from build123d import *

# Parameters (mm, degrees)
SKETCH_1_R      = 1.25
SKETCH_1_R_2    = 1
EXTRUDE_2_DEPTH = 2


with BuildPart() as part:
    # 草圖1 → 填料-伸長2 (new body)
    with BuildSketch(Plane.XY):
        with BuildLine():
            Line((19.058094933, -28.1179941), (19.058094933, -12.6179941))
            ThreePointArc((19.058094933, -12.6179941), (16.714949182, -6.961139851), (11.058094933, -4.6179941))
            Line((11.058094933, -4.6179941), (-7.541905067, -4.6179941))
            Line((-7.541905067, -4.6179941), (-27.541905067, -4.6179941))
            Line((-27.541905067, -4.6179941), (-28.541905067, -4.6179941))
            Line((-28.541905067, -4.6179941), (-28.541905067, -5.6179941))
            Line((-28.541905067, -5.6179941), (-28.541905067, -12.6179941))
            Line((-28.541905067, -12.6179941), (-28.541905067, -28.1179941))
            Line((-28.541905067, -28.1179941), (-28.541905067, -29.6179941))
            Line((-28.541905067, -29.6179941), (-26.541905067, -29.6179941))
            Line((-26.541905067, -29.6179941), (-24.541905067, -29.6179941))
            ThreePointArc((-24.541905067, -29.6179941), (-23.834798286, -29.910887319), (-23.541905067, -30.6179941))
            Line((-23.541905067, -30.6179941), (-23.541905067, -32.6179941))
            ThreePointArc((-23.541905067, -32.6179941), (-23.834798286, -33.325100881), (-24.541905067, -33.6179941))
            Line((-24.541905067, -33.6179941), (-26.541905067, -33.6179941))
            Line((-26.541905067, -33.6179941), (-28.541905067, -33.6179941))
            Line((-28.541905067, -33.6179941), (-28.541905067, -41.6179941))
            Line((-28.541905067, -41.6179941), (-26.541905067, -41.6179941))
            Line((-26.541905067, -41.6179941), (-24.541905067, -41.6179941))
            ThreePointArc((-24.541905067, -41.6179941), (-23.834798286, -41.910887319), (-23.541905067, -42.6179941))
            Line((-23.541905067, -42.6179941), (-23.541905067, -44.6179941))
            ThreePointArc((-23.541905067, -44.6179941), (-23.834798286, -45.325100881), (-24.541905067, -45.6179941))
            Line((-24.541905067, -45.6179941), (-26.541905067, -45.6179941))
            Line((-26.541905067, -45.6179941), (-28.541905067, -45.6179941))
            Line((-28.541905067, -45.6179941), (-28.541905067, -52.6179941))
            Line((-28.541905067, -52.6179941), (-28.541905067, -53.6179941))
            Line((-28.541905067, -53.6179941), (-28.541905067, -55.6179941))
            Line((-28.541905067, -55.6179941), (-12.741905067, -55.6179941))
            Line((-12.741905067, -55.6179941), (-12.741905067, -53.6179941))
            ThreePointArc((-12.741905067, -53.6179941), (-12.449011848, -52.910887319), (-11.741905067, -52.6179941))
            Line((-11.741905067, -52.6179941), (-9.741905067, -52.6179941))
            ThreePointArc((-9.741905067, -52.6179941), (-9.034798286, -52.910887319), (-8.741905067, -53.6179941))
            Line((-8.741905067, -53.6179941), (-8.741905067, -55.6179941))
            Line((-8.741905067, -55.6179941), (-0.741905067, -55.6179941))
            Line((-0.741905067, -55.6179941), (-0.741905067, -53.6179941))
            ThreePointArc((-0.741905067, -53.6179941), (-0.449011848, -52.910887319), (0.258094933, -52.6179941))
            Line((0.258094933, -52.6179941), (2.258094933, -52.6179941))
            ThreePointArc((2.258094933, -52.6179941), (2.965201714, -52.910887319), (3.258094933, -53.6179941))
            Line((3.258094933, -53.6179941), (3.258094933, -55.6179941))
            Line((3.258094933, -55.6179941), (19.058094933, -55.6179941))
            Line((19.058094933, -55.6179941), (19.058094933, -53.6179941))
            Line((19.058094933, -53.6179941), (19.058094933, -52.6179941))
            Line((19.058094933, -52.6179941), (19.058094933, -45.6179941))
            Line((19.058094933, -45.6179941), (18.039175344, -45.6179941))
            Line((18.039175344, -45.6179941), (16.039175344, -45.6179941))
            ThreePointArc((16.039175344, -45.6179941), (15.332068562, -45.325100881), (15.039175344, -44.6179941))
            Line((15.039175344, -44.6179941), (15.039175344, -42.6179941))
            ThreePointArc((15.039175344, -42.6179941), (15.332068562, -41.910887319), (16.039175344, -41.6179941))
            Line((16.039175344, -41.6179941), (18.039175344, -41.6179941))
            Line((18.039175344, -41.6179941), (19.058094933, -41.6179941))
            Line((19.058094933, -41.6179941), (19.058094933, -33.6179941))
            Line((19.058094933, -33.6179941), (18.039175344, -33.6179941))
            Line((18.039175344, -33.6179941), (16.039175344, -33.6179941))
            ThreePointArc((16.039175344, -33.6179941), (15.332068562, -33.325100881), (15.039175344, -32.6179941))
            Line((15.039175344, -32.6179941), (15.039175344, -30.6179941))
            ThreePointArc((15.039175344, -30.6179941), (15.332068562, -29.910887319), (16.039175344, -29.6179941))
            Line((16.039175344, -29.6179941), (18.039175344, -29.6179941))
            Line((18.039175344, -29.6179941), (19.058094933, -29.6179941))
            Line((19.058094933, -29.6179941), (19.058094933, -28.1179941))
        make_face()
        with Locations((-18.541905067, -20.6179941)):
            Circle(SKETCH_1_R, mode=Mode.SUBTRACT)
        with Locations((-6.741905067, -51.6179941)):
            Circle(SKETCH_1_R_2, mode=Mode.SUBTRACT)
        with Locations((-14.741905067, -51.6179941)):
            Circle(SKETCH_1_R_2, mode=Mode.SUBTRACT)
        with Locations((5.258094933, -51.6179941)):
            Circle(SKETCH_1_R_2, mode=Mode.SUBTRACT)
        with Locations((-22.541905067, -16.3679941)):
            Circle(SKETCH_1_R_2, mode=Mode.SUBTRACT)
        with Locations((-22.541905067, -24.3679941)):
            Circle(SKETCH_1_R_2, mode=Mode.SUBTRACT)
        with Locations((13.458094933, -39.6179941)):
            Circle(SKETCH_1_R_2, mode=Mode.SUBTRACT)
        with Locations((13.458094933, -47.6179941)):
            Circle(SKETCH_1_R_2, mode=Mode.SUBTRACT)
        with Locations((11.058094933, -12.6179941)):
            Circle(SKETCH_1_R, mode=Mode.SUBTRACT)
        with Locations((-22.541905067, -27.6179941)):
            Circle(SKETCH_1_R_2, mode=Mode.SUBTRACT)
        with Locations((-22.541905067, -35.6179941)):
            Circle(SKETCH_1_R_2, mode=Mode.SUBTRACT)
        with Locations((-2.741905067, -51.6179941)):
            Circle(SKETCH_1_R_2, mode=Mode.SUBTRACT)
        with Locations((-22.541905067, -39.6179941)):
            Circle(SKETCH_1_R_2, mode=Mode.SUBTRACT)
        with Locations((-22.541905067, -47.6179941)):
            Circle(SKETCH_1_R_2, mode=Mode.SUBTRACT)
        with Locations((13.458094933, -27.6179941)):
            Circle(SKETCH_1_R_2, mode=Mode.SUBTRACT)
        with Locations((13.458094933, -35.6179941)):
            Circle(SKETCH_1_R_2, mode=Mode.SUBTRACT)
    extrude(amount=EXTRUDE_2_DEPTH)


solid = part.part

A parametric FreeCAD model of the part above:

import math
import FreeCAD as App
import Part
import Sketcher

V = App.Vector

doc = App.newDocument("Part")
body = doc.addObject("PartDesign::Body", "Body")

sketch1 = doc.addObject("Sketcher::SketchObject", "Sketch")
body.addObject(sketch1)
sketch1.AttachmentSupport = (doc.XY_Plane, [""])
sketch1.MapMode = "FlatFace"
sketch1.addGeometry(Part.ArcOfCircle(Part.Circle(V(11.1, -12.6, 0), V(0, 0, 1), 8), math.radians(0), math.radians(90)), False)
sketch1.addGeometry(Part.LineSegment(V(11.1, -4.6, 0), V(-28.5, -4.6, 0)), False)
sketch1.addGeometry(Part.LineSegment(V(-28.5, -4.6, 0), V(-28.5, -29.6, 0)), False)
sketch1.addGeometry(Part.LineSegment(V(-28.5, -29.6, 0), V(-24.5, -29.6, 0)), False)
sketch1.addGeometry(Part.ArcOfCircle(Part.Circle(V(-24.5, -30.6, 0), V(0, 0, 1), 1), math.radians(0), math.radians(90)), False)
sketch1.addGeometry(Part.LineSegment(V(-23.5, -30.6, 0), V(-23.5, -32.6, 0)), False)
sketch1.addGeometry(Part.ArcOfCircle(Part.Circle(V(-24.5, -32.6, 0), V(0, 0, 1), 1), math.radians(-90), math.radians(0)), False)
sketch1.addGeometry(Part.LineSegment(V(-24.5, -33.6, 0), V(-28.5, -33.6, 0)), False)
sketch1.addGeometry(Part.LineSegment(V(-28.5, -33.6, 0), V(-28.5, -41.6, 0)), False)
sketch1.addGeometry(Part.LineSegment(V(-28.5, -41.6, 0), V(-24.5, -41.6, 0)), False)
sketch1.addGeometry(Part.ArcOfCircle(Part.Circle(V(-24.5, -42.6, 0), V(0, 0, 1), 1), math.radians(0), math.radians(90)), False)
sketch1.addGeometry(Part.LineSegment(V(-23.5, -42.6, 0), V(-23.5, -44.6, 0)), False)
sketch1.addGeometry(Part.ArcOfCircle(Part.Circle(V(-24.5, -44.6, 0), V(0, 0, 1), 1), math.radians(-90), math.radians(0)), False)
sketch1.addGeometry(Part.LineSegment(V(-24.5, -45.6, 0), V(-28.5, -45.6, 0)), False)
sketch1.addGeometry(Part.LineSegment(V(-28.5, -45.6, 0), V(-28.5, -55.6, 0)), False)
sketch1.addGeometry(Part.LineSegment(V(-28.5, -55.6, 0), V(-12.7, -55.6, 0)), False)
sketch1.addGeometry(Part.LineSegment(V(-12.7, -55.6, 0), V(-12.7, -53.6, 0)), False)
sketch1.addGeometry(Part.ArcOfCircle(Part.Circle(V(-11.7, -53.6, 0), V(0, 0, 1), 1), math.radians(90), math.radians(180)), False)
sketch1.addGeometry(Part.LineSegment(V(-11.7, -52.6, 0), V(-9.7, -52.6, 0)), False)
sketch1.addGeometry(Part.ArcOfCircle(Part.Circle(V(-9.7, -53.6, 0), V(0, 0, 1), 1), math.radians(0), math.radians(90)), False)
sketch1.addGeometry(Part.LineSegment(V(-8.7, -53.6, 0), V(-8.7, -55.6, 0)), False)
sketch1.addGeometry(Part.LineSegment(V(-8.7, -55.6, 0), V(-0.7, -55.6, 0)), False)
sketch1.addGeometry(Part.LineSegment(V(-0.7, -55.6, 0), V(-0.7, -53.6, 0)), False)
sketch1.addGeometry(Part.ArcOfCircle(Part.Circle(V(0.3, -53.6, 0), V(0, 0, 1), 1), math.radians(90), math.radians(180)), False)
sketch1.addGeometry(Part.LineSegment(V(0.3, -52.6, 0), V(2.3, -52.6, 0)), False)
sketch1.addGeometry(Part.ArcOfCircle(Part.Circle(V(2.3, -53.6, 0), V(0, 0, 1), 1), math.radians(0), math.radians(90)), False)
sketch1.addGeometry(Part.LineSegment(V(3.3, -53.6, 0), V(3.3, -55.6, 0)), False)
sketch1.addGeometry(Part.LineSegment(V(3.3, -55.6, 0), V(19.1, -55.6, 0)), False)
sketch1.addGeometry(Part.LineSegment(V(19.1, -55.6, 0), V(19.1, -45.6, 0)), False)
sketch1.addGeometry(Part.LineSegment(V(19.1, -45.6, 0), V(16, -45.6, 0)), False)
sketch1.addGeometry(Part.ArcOfCircle(Part.Circle(V(16, -44.6, 0), V(0, 0, 1), 1), math.radians(180), math.radians(270)), False)
sketch1.addGeometry(Part.LineSegment(V(15, -44.6, 0), V(15, -42.6, 0)), False)
sketch1.addGeometry(Part.ArcOfCircle(Part.Circle(V(16, -42.6, 0), V(0, 0, 1), 1), math.radians(90), math.radians(180)), False)
sketch1.addGeometry(Part.LineSegment(V(16, -41.6, 0), V(19.1, -41.6, 0)), False)
sketch1.addGeometry(Part.LineSegment(V(19.1, -41.6, 0), V(19.1, -33.6, 0)), False)
sketch1.addGeometry(Part.LineSegment(V(19.1, -33.6, 0), V(16, -33.6, 0)), False)
sketch1.addGeometry(Part.ArcOfCircle(Part.Circle(V(16, -32.6, 0), V(0, 0, 1), 1), math.radians(180), math.radians(270)), False)
sketch1.addGeometry(Part.LineSegment(V(15, -32.6, 0), V(15, -30.6, 0)), False)
sketch1.addGeometry(Part.ArcOfCircle(Part.Circle(V(16, -30.6, 0), V(0, 0, 1), 1), math.radians(90), math.radians(180)), False)
sketch1.addGeometry(Part.LineSegment(V(16, -29.6, 0), V(19.1, -29.6, 0)), False)
sketch1.addGeometry(Part.LineSegment(V(19.1, -29.6, 0), V(19.1, -12.6, 0)), False)
sketch1.addGeometry(Part.Circle(V(-22.5, -47.6, 0), V(0, 0, 1), 1), False)
sketch1.addGeometry(Part.Circle(V(-14.7, -51.6, 0), V(0, 0, 1), 1), False)
sketch1.addGeometry(Part.Circle(V(-6.7, -51.6, 0), V(0, 0, 1), 1), False)
sketch1.addGeometry(Part.Circle(V(-22.5, -39.6, 0), V(0, 0, 1), 1), False)
sketch1.addGeometry(Part.Circle(V(-22.5, -35.6, 0), V(0, 0, 1), 1), False)
sketch1.addGeometry(Part.Circle(V(-2.7, -51.6, 0), V(0, 0, 1), 1), False)
sketch1.addGeometry(Part.Circle(V(5.3, -51.6, 0), V(0, 0, 1), 1), False)
sketch1.addGeometry(Part.Circle(V(13.5, -47.6, 0), V(0, 0, 1), 1), False)
sketch1.addGeometry(Part.Circle(V(13.5, -39.6, 0), V(0, 0, 1), 1), False)
sketch1.addGeometry(Part.Circle(V(13.5, -35.6, 0), V(0, 0, 1), 1), False)
sketch1.addGeometry(Part.Circle(V(-22.5, -27.6, 0), V(0, 0, 1), 1), False)
sketch1.addGeometry(Part.Circle(V(-22.5, -24.4, 0), V(0, 0, 1), 1), False)
sketch1.addGeometry(Part.Circle(V(-18.5, -20.6, 0), V(0, 0, 1), 1.2), False)
sketch1.addGeometry(Part.Circle(V(-22.5, -16.4, 0), V(0, 0, 1), 1), False)
sketch1.addGeometry(Part.Circle(V(13.5, -27.6, 0), V(0, 0, 1), 1), False)
sketch1.addGeometry(Part.Circle(V(11.1, -12.6, 0), V(0, 0, 1), 1.2), False)
sketch1.addConstraint(Sketcher.Constraint("Tangent", 0, 2, 1, 1))
sketch1.addConstraint(Sketcher.Constraint("Coincident", 1, 2, 2, 1))
sketch1.addConstraint(Sketcher.Constraint("Coincident", 2, 2, 3, 1))
sketch1.addConstraint(Sketcher.Constraint("Tangent", 3, 2, 4, 2))
sketch1.addConstraint(Sketcher.Constraint("Tangent", 4, 1, 5, 1))
sketch1.addConstraint(Sketcher.Constraint("Tangent", 5, 2, 6, 2))
sketch1.addConstraint(Sketcher.Constraint("Tangent", 6, 1, 7, 1))
sketch1.addConstraint(Sketcher.Constraint("Coincident", 7, 2, 8, 1))
sketch1.addConstraint(Sketcher.Constraint("Coincident", 8, 2, 9, 1))
sketch1.addConstraint(Sketcher.Constraint("Tangent", 9, 2, 10, 2))
sketch1.addConstraint(Sketcher.Constraint("Tangent", 10, 1, 11, 1))
sketch1.addConstraint(Sketcher.Constraint("Tangent", 11, 2, 12, 2))
sketch1.addConstraint(Sketcher.Constraint("Tangent", 12, 1, 13, 1))
sketch1.addConstraint(Sketcher.Constraint("Coincident", 13, 2, 14, 1))
sketch1.addConstraint(Sketcher.Constraint("Coincident", 14, 2, 15, 1))
sketch1.addConstraint(Sketcher.Constraint("Coincident", 15, 2, 16, 1))
sketch1.addConstraint(Sketcher.Constraint("Tangent", 16, 2, 17, 2))
sketch1.addConstraint(Sketcher.Constraint("Tangent", 17, 1, 18, 1))
sketch1.addConstraint(Sketcher.Constraint("Tangent", 18, 2, 19, 2))
sketch1.addConstraint(Sketcher.Constraint("Tangent", 19, 1, 20, 1))
sketch1.addConstraint(Sketcher.Constraint("Coincident", 20, 2, 21, 1))
sketch1.addConstraint(Sketcher.Constraint("Coincident", 21, 2, 22, 1))
sketch1.addConstraint(Sketcher.Constraint("Tangent", 22, 2, 23, 2))
sketch1.addConstraint(Sketcher.Constraint("Tangent", 23, 1, 24, 1))
sketch1.addConstraint(Sketcher.Constraint("Tangent", 24, 2, 25, 2))
sketch1.addConstraint(Sketcher.Constraint("Tangent", 25, 1, 26, 1))
sketch1.addConstraint(Sketcher.Constraint("Coincident", 26, 2, 27, 1))
sketch1.addConstraint(Sketcher.Constraint("Coincident", 27, 2, 28, 1))
sketch1.addConstraint(Sketcher.Constraint("Coincident", 28, 2, 29, 1))
sketch1.addConstraint(Sketcher.Constraint("Tangent", 29, 2, 30, 2))
sketch1.addConstraint(Sketcher.Constraint("Tangent", 30, 1, 31, 1))
sketch1.addConstraint(Sketcher.Constraint("Tangent", 31, 2, 32, 2))
sketch1.addConstraint(Sketcher.Constraint("Tangent", 32, 1, 33, 1))
sketch1.addConstraint(Sketcher.Constraint("Coincident", 33, 2, 34, 1))
sketch1.addConstraint(Sketcher.Constraint("Coincident", 34, 2, 35, 1))
sketch1.addConstraint(Sketcher.Constraint("Tangent", 35, 2, 36, 2))
sketch1.addConstraint(Sketcher.Constraint("Tangent", 36, 1, 37, 1))
sketch1.addConstraint(Sketcher.Constraint("Tangent", 37, 2, 38, 2))
sketch1.addConstraint(Sketcher.Constraint("Tangent", 38, 1, 39, 1))
sketch1.addConstraint(Sketcher.Constraint("Coincident", 39, 2, 40, 1))
sketch1.addConstraint(Sketcher.Constraint("Tangent", 40, 2, 0, 1))
sketch1.addConstraint(Sketcher.Constraint("Horizontal", 1))
sketch1.addConstraint(Sketcher.Constraint("Vertical", 2))
sketch1.addConstraint(Sketcher.Constraint("Horizontal", 3))
sketch1.addConstraint(Sketcher.Constraint("Vertical", 5))
sketch1.addConstraint(Sketcher.Constraint("Horizontal", 7))
sketch1.addConstraint(Sketcher.Constraint("Vertical", 8))
sketch1.addConstraint(Sketcher.Constraint("Horizontal", 9))
sketch1.addConstraint(Sketcher.Constraint("Vertical", 11))
sketch1.addConstraint(Sketcher.Constraint("Horizontal", 13))
sketch1.addConstraint(Sketcher.Constraint("Vertical", 14))
sketch1.addConstraint(Sketcher.Constraint("Horizontal", 15))
sketch1.addConstraint(Sketcher.Constraint("Vertical", 16))
sketch1.addConstraint(Sketcher.Constraint("Horizontal", 18))
sketch1.addConstraint(Sketcher.Constraint("Vertical", 20))
sketch1.addConstraint(Sketcher.Constraint("Horizontal", 21))
sketch1.addConstraint(Sketcher.Constraint("Vertical", 22))
sketch1.addConstraint(Sketcher.Constraint("Horizontal", 24))
sketch1.addConstraint(Sketcher.Constraint("Vertical", 26))
sketch1.addConstraint(Sketcher.Constraint("Horizontal", 27))
sketch1.addConstraint(Sketcher.Constraint("Vertical", 28))
sketch1.addConstraint(Sketcher.Constraint("Horizontal", 29))
sketch1.addConstraint(Sketcher.Constraint("Vertical", 31))
sketch1.addConstraint(Sketcher.Constraint("Horizontal", 33))
sketch1.addConstraint(Sketcher.Constraint("Vertical", 34))
sketch1.addConstraint(Sketcher.Constraint("Horizontal", 35))
sketch1.addConstraint(Sketcher.Constraint("Vertical", 37))
sketch1.addConstraint(Sketcher.Constraint("Horizontal", 39))
sketch1.addConstraint(Sketcher.Constraint("Vertical", 40))
sketch1.addConstraint(Sketcher.Constraint("Coincident", 56, 3, 0, 3))
sketch1.addConstraint(Sketcher.Constraint("Equal", 4, 6))
sketch1.addConstraint(Sketcher.Constraint("Equal", 6, 10))
sketch1.addConstraint(Sketcher.Constraint("Equal", 10, 12))
sketch1.addConstraint(Sketcher.Constraint("Equal", 12, 17))
sketch1.addConstraint(Sketcher.Constraint("Equal", 17, 19))
sketch1.addConstraint(Sketcher.Constraint("Equal", 19, 23))
sketch1.addConstraint(Sketcher.Constraint("Equal", 23, 25))
sketch1.addConstraint(Sketcher.Constraint("Equal", 25, 30))
sketch1.addConstraint(Sketcher.Constraint("Equal", 30, 32))
sketch1.addConstraint(Sketcher.Constraint("Equal", 32, 36))
sketch1.addConstraint(Sketcher.Constraint("Equal", 36, 38))
sketch1.addConstraint(Sketcher.Constraint("Equal", 38, 41))
sketch1.addConstraint(Sketcher.Constraint("Equal", 41, 42))
sketch1.addConstraint(Sketcher.Constraint("Equal", 42, 43))
sketch1.addConstraint(Sketcher.Constraint("Equal", 43, 44))
sketch1.addConstraint(Sketcher.Constraint("Equal", 44, 45))
sketch1.addConstraint(Sketcher.Constraint("Equal", 45, 46))
sketch1.addConstraint(Sketcher.Constraint("Equal", 46, 47))
sketch1.addConstraint(Sketcher.Constraint("Equal", 47, 48))
sketch1.addConstraint(Sketcher.Constraint("Equal", 48, 49))
sketch1.addConstraint(Sketcher.Constraint("Equal", 49, 50))
sketch1.addConstraint(Sketcher.Constraint("Equal", 50, 51))
sketch1.addConstraint(Sketcher.Constraint("Equal", 51, 52))
sketch1.addConstraint(Sketcher.Constraint("Equal", 52, 54))
sketch1.addConstraint(Sketcher.Constraint("Equal", 54, 55))
sketch1.addConstraint(Sketcher.Constraint("Equal", 53, 56))
sketch1.addConstraint(Sketcher.Constraint("Horizontal", 19, 3, 23, 3))
sketch1.addConstraint(Sketcher.Constraint("Horizontal", 12, 3, 30, 3))
sketch1.addConstraint(Sketcher.Constraint("Horizontal", 10, 3, 32, 3))
sketch1.addConstraint(Sketcher.Constraint("Horizontal", 6, 3, 36, 3))
sketch1.addConstraint(Sketcher.Constraint("Horizontal", 4, 3, 38, 3))
sketch1.addConstraint(Sketcher.Constraint("Horizontal", 42, 3, 43, 3))
sketch1.addConstraint(Sketcher.Constraint("Horizontal", 43, 3, 46, 3))
sketch1.addConstraint(Sketcher.Constraint("Horizontal", 46, 3, 47, 3))
sketch1.addConstraint(Sketcher.Constraint("Horizontal", 41, 3, 48, 3))
sketch1.addConstraint(Sketcher.Constraint("Horizontal", 44, 3, 49, 3))
sketch1.addConstraint(Sketcher.Constraint("Horizontal", 45, 3, 50, 3))
sketch1.addConstraint(Sketcher.Constraint("Horizontal", 51, 3, 55, 3))
sketch1.addConstraint(Sketcher.Constraint("Horizontal", 15, 2, 20, 2))
sketch1.addConstraint(Sketcher.Constraint("Horizontal", 21, 2, 26, 2))
sketch1.addConstraint(Sketcher.Constraint("Vertical", 6, 3, 10, 3))
sketch1.addConstraint(Sketcher.Constraint("Vertical", 32, 3, 36, 3))
sketch1.addConstraint(Sketcher.Constraint("Vertical", 41, 3, 44, 3))
sketch1.addConstraint(Sketcher.Constraint("Vertical", 44, 3, 45, 3))
sketch1.addConstraint(Sketcher.Constraint("Vertical", 48, 3, 49, 3))
sketch1.addConstraint(Sketcher.Constraint("Vertical", 49, 3, 50, 3))
sketch1.addConstraint(Sketcher.Constraint("Vertical", 45, 3, 51, 3))
sketch1.addConstraint(Sketcher.Constraint("Vertical", 51, 3, 52, 3))
sketch1.addConstraint(Sketcher.Constraint("Vertical", 52, 3, 54, 3))
sketch1.addConstraint(Sketcher.Constraint("Vertical", 50, 3, 55, 3))
sketch1.addConstraint(Sketcher.Constraint("Vertical", 2, 2, 7, 2))
sketch1.addConstraint(Sketcher.Constraint("Vertical", 8, 2, 13, 2))
sketch1.addConstraint(Sketcher.Constraint("Vertical", 28, 2, 33, 2))
sketch1.addConstraint(Sketcher.Constraint("Vertical", 34, 2, 39, 2))
sketch1.addConstraint(Sketcher.Constraint("Equal", 18, 24))
sketch1.addConstraint(Sketcher.Constraint("Equal", 15, 27))
sketch1.addConstraint(Sketcher.Constraint("Equal", 24, 5))
sketch1.addConstraint(Sketcher.Constraint("Equal", 21, 8))
sketch1.addConstraint(Sketcher.Constraint("Equal", 5, 11))
sketch1.addConstraint(Sketcher.Constraint("Equal", 11, 16))
sketch1.addConstraint(Sketcher.Constraint("Diameter", 41, 2.0))
sketch1.addConstraint(Sketcher.Constraint("Radius", 0, 8.0))
sketch1.addConstraint(Sketcher.Constraint("Diameter", 53, 2.5))
sketch1.addConstraint(Sketcher.Constraint("DistanceX", 3, 1, 3, 2, 4.0))
sketch1.addConstraint(Sketcher.Constraint("DistanceX", 18, 1, 18, 2, 2.0))
sketch1.addConstraint(Sketcher.Constraint("DistanceX", 21, 1, 21, 2, 8.0))
sketch1.addConstraint(Sketcher.Constraint("DistanceY", 2, 2, 2, 1, 25.0))
sketch1.addConstraint(Sketcher.Constraint("DistanceY", 14, 2, 14, 1, 10.0))
sketch1.addConstraint(Sketcher.Constraint("DistanceX", 1, 2, 1, 1, 39.6))
sketch1.addConstraint(Sketcher.Constraint("DistanceX", 29, 2, 29, 1, 3.01892))
sketch1.addConstraint(Sketcher.Constraint("DistanceX", -1, 1, 0, 3, 11.058095))
sketch1.addConstraint(Sketcher.Constraint("DistanceY", 0, 3, -1, 1, 12.617994))
sketch1.addConstraint(Sketcher.Constraint("DistanceX", 41, 3, -1, 1, 22.541905))
sketch1.addConstraint(Sketcher.Constraint("DistanceY", 41, 3, -1, 1, 47.617994))
sketch1.addConstraint(Sketcher.Constraint("DistanceX", 42, 3, -1, 1, 14.741905))
sketch1.addConstraint(Sketcher.Constraint("DistanceY", 42, 3, -1, 1, 51.617994))
sketch1.addConstraint(Sketcher.Constraint("DistanceX", 43, 3, -1, 1, 6.741905))
sketch1.addConstraint(Sketcher.Constraint("DistanceY", 44, 3, -1, 1, 39.617994))
sketch1.addConstraint(Sketcher.Constraint("DistanceY", 45, 3, -1, 1, 35.617994))
sketch1.addConstraint(Sketcher.Constraint("DistanceX", 46, 3, -1, 1, 2.741905))
sketch1.addConstraint(Sketcher.Constraint("DistanceX", -1, 1, 47, 3, 5.258095))
sketch1.addConstraint(Sketcher.Constraint("DistanceX", -1, 1, 48, 3, 13.458095))
sketch1.addConstraint(Sketcher.Constraint("DistanceY", 51, 3, -1, 1, 27.617994))
sketch1.addConstraint(Sketcher.Constraint("DistanceY", 52, 3, -1, 1, 24.367994))
sketch1.addConstraint(Sketcher.Constraint("DistanceX", 53, 3, -1, 1, 18.541905))
sketch1.addConstraint(Sketcher.Constraint("DistanceY", 53, 3, -1, 1, 20.617994))
sketch1.addConstraint(Sketcher.Constraint("DistanceY", 54, 3, -1, 1, 16.367994))
pad1 = doc.addObject("PartDesign::Pad", "Pad")
body.addObject(pad1)
pad1.Profile = sketch1
pad1.Length = 2

doc.recompute()
